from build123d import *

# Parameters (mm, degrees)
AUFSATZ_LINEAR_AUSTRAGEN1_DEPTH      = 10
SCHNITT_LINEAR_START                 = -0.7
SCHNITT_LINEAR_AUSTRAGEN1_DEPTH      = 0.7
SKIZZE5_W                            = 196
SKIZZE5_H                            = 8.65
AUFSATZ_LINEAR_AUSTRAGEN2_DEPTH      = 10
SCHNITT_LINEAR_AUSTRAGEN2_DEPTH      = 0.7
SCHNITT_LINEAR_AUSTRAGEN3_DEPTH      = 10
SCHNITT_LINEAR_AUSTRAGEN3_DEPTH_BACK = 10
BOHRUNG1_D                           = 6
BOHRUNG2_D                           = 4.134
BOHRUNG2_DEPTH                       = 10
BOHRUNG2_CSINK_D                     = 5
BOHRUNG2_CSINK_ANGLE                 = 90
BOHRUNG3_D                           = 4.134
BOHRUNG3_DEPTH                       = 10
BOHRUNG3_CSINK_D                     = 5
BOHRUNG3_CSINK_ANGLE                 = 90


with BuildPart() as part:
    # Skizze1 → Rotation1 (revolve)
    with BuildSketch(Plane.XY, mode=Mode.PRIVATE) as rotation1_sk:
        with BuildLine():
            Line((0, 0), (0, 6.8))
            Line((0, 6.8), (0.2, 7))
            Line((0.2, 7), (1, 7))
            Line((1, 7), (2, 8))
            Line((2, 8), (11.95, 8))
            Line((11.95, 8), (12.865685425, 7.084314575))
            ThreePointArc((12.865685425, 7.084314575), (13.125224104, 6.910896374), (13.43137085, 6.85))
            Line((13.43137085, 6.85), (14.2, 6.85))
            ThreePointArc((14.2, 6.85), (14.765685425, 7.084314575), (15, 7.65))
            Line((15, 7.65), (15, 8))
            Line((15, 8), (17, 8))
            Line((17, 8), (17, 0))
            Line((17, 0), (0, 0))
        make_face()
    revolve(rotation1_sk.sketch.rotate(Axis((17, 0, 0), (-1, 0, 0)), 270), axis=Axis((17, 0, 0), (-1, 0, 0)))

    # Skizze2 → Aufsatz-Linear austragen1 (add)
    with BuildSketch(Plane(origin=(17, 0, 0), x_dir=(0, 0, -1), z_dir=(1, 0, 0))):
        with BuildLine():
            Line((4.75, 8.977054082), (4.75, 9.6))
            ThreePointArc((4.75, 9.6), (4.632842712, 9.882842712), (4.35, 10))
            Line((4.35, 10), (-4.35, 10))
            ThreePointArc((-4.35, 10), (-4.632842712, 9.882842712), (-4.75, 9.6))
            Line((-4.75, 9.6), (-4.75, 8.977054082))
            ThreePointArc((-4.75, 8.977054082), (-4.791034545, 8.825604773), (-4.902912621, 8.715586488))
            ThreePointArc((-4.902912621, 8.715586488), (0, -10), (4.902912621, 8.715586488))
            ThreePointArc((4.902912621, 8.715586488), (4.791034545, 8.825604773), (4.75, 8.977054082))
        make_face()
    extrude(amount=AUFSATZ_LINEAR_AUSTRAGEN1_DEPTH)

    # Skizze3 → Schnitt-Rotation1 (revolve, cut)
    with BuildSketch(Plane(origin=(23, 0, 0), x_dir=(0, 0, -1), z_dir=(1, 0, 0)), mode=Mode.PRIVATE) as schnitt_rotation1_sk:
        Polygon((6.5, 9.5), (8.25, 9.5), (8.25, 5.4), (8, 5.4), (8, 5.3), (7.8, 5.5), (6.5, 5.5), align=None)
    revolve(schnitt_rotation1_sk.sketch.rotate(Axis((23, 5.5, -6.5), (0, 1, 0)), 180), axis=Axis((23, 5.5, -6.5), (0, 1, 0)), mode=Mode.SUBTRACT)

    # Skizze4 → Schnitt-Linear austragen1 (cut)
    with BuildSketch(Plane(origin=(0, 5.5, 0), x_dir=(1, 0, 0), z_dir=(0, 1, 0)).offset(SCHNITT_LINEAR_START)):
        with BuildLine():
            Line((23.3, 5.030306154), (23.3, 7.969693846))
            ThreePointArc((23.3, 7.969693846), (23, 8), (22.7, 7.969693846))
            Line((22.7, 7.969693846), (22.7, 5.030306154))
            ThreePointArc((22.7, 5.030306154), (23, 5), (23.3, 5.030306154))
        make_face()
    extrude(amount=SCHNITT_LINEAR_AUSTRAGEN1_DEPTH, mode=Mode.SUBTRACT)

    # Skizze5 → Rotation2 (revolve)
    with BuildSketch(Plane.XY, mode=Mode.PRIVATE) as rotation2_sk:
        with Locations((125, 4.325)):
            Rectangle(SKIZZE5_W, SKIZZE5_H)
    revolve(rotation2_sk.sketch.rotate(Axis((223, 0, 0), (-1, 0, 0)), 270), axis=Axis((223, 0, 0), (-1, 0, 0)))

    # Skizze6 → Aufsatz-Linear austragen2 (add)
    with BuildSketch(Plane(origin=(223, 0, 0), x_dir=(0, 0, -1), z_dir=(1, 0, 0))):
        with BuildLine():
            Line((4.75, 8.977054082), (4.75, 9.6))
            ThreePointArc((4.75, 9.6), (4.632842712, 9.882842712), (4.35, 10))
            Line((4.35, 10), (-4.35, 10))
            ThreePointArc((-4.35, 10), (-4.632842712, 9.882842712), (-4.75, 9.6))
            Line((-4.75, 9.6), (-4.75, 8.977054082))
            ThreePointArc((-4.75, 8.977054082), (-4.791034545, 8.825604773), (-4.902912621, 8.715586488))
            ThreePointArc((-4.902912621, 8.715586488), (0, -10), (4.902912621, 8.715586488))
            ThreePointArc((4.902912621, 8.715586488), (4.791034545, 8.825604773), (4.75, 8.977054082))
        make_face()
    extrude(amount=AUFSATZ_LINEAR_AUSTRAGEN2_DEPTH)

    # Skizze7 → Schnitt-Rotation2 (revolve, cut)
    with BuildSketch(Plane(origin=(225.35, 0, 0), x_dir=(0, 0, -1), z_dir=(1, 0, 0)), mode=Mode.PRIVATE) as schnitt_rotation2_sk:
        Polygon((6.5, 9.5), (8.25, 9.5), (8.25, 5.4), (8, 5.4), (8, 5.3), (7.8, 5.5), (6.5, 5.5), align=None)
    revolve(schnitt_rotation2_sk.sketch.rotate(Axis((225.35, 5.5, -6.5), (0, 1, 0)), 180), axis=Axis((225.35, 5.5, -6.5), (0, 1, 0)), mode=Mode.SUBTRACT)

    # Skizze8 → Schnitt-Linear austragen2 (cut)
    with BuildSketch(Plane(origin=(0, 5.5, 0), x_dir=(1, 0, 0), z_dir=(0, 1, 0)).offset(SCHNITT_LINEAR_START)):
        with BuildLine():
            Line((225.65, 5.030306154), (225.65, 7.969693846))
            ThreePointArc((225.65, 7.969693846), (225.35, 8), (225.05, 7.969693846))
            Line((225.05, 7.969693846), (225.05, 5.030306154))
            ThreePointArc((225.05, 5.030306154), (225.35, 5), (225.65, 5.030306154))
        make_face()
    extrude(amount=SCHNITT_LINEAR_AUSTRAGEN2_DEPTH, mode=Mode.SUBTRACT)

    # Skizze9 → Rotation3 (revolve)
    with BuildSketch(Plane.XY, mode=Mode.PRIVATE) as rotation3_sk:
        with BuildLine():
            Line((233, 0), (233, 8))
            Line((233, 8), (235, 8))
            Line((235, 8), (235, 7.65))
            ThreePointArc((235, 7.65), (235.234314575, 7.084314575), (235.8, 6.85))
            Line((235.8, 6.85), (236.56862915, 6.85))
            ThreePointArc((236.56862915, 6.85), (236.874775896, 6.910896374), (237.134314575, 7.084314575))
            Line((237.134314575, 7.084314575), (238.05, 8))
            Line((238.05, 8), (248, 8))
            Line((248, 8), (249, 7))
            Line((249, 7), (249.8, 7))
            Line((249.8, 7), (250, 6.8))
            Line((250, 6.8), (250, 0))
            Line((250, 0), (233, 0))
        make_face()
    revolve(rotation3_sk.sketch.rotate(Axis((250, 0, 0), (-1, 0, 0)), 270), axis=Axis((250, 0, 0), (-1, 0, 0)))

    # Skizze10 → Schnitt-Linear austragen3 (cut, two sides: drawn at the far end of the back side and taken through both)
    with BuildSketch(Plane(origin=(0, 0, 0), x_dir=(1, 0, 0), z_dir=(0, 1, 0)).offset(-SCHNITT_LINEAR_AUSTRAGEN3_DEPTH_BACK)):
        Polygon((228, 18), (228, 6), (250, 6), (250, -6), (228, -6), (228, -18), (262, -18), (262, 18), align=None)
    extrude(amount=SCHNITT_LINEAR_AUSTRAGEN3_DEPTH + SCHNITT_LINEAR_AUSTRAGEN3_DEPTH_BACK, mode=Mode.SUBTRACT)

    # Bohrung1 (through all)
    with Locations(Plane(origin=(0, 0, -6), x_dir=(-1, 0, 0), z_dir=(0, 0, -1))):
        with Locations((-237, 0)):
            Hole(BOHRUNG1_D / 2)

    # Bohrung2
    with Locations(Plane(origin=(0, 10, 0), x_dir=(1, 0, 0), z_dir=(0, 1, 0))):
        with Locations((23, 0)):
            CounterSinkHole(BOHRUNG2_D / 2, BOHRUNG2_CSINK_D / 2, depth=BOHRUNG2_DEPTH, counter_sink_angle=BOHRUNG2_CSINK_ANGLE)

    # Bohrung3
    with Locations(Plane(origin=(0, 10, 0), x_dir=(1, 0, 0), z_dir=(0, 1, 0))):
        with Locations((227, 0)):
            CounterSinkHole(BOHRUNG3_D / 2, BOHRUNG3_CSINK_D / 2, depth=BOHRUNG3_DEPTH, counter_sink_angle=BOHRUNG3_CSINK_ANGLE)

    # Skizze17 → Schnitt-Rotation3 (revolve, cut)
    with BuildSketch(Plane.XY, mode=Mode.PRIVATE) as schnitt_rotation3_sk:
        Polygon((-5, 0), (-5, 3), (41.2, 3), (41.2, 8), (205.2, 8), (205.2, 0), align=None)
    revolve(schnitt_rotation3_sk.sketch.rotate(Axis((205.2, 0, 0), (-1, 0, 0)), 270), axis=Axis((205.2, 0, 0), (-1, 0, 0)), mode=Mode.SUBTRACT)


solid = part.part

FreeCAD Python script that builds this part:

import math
import FreeCAD as App
import Part
import Sketcher
from FreeCAD import Vector
Q = App.Units.Quantity


def add_polygon(sketch, points):
    """Adds a closed chain of lines whose ends are joined by coincident constraints."""
    first, n = sketch.GeometryCount, len(points)
    for a, b in zip(points, points[1:] + points[:1]):
        sketch.addGeometry(Part.LineSegment(App.Vector(*a, 0), App.Vector(*b, 0)), False)
    for i in range(n):
        sketch.addConstraint(Sketcher.Constraint("Coincident", first + i, 2, first + (i + 1) % n, 1))

doc = App.newDocument("Part")
params = doc.addObject("Spreadsheet::Sheet", "Params")
for row, (alias, value) in enumerate([
    ("sketch1_radius", "0.8 mm"),
    ("sketch1_width", "17 mm"),
    ("sketch1_width2", "2 mm"),
    ("sketch1_height", "8 mm"),
    ("sketch1_width3", "0.8 mm"),
    ("revolution_angle", "360 deg"),
    ("sketch2_radius", "10 mm"),
    ("sketch2_radius2", "0.4 mm"),
    ("sketch2_radius3", "0.3 mm"),
    ("sketch2_height", "8.7 mm"),
    ("pad1_length", "10 mm"),
    ("sketch3_width", "4 mm"),
    ("sketch3_width2", "0.1 mm"),
    ("sketch3_width3", "4.1 mm"),
    ("sketch3_height", "1.3 mm"),
    ("sketch3_height2", "1.75 mm"),
    ("groove_angle", "360 deg"),
    ("sketch4_radius", "1.5 mm"),
    ("pocket1_length", "0.7 mm"),
    ("sketch5_width", "196 mm"),
    ("sketch5_height", "8.65 mm"),
    ("revolution2_angle", "360 deg"),
    ("sketch6_radius", "10 mm"),
    ("sketch6_radius2", "0.4 mm"),
    ("sketch6_radius3", "0.3 mm"),
    ("sketch6_height", "8.7 mm"),
    ("pad2_length", "10 mm"),
    ("sketch7_width", "4 mm"),
    ("sketch7_width2", "0.1 mm"),
    ("sketch7_width3", "4.1 mm"),
    ("sketch7_height", "1.3 mm"),
    ("sketch7_height2", "1.75 mm"),
    ("groove2_angle", "360 deg"),
    ("sketch8_radius", "1.5 mm"),
    ("pocket2_length", "0.7 mm"),
    ("sketch9_radius", "0.8 mm"),
    ("sketch9_width", "17 mm"),
    ("sketch9_width2", "2 mm"),
    ("sketch9_height", "8 mm"),
    ("sketch9_width3", "0.8 mm"),
    ("revolution3_angle", "360 deg"),
    ("sketch10_width", "22 mm"),
    ("sketch10_width2", "34 mm"),
    ("sketch10_height", "12 mm"),
    ("sketch11_diameter", "6 mm"),
    ("hole_diameter", "6 mm"),
    ("hole2_diameter", "4.134 mm"),
    ("hole2_depth", "10 mm"),
    ("hole2_csink_diameter", "5 mm"),
    ("hole3_diameter", "4.134 mm"),
    ("hole3_depth", "10 mm"),
    ("hole3_csink_diameter", "5 mm"),
    ("sketch14_width", "164 mm"),
    ("sketch14_height", "3 mm"),
    ("sketch14_height2", "8 mm"),
    ("sketch14_width2", "210.2 mm"),
    ("groove3_angle", "360 deg"),
], start=1):
    params.set(f"A{row}", alias)
    params.set(f"B{row}", "=" + value)
    params.setAlias(f"B{row}", alias)

body = doc.addObject("PartDesign::Body", "Body")

sketch1 = doc.addObject("Sketcher::SketchObject", "Sketch")
body.addObject(sketch1)
sketch1.AttachmentSupport = (doc.XY_Plane, [""])
sketch1.MapMode = "FlatFace"
sketch1.addGeometry(Part.LineSegment(Vector(0, 6.8, 0), Vector(0, 0, 0)), False)
sketch1.addGeometry(Part.LineSegment(Vector(0, 0, 0), Vector(17, 0, 0)), False)
sketch1.addGeometry(Part.LineSegment(Vector(17, 0, 0), Vector(17, 8, 0)), False)
sketch1.addGeometry(Part.LineSegment(Vector(17, 8, 0), Vector(15, 8, 0)), False)
sketch1.addGeometry(Part.LineSegment(Vector(15, 8, 0), Vector(15, 7.65, 0)), False)
sketch1.addGeometry(Part.ArcOfCircle(Part.Circle(Vector(14.2, 7.65, 0), Vector(0, 0, 1), 0.8), math.radians(-90), math.radians(0)), False)
sketch1.addGeometry(Part.LineSegment(Vector(14.2, 6.85, 0), Vector(13.431371, 6.85, 0)), False)
sketch1.addGeometry(Part.ArcOfCircle(Part.Circle(Vector(13.431371, 7.65, 0), Vector(0, 0, 1), 0.8), math.radians(-135), math.radians(-90)), False)
sketch1.addGeometry(Part.LineSegment(Vector(12.865685, 7.084315, 0), Vector(11.95, 8, 0)), False)
sketch1.addGeometry(Part.LineSegment(Vector(11.95, 8, 0), Vector(2, 8, 0)), False)
sketch1.addGeometry(Part.LineSegment(Vector(2, 8, 0), Vector(1, 7, 0)), False)
sketch1.addGeometry(Part.LineSegment(Vector(1, 7, 0), Vector(0.2, 7, 0)), False)
sketch1.addGeometry(Part.LineSegment(Vector(0.2, 7, 0), Vector(0, 6.8, 0)), False)
sketch1.addConstraint(Sketcher.Constraint("Coincident", 0, 2, 1, 1))
sketch1.addConstraint(Sketcher.Constraint("Coincident", 1, 2, 2, 1))
sketch1.addConstraint(Sketcher.Constraint("Coincident", 2, 2, 3, 1))
sketch1.addConstraint(Sketcher.Constraint("Coincident", 3, 2, 4, 1))
sketch1.addConstraint(Sketcher.Constraint("Tangent", 4, 2, 5, 2))
sketch1.addConstraint(Sketcher.Constraint("Tangent", 5, 1, 6, 1))
sketch1.addConstraint(Sketcher.Constraint("Tangent", 6, 2, 7, 2))
sketch1.addConstraint(Sketcher.Constraint("Tangent", 7, 1, 8, 1))
sketch1.addConstraint(Sketcher.Constraint("Coincident", 8, 2, 9, 1))
sketch1.addConstraint(Sketcher.Constraint("Coincident", 9, 2, 10, 1))
sketch1.addConstraint(Sketcher.Constraint("Coincident", 10, 2, 11, 1))
sketch1.addConstraint(Sketcher.Constraint("Coincident", 11, 2, 12, 1))
sketch1.addConstraint(Sketcher.Constraint("Coincident", 12, 2, 0, 1))
sketch1.addConstraint(Sketcher.Constraint("Vertical", 0))
sketch1.addConstraint(Sketcher.Constraint("Horizontal", 1))
sketch1.addConstraint(Sketcher.Constraint("Vertical", 2))
sketch1.addConstraint(Sketcher.Constraint("Horizontal", 3))
sketch1.addConstraint(Sketcher.Constraint("Vertical", 4))
sketch1.addConstraint(Sketcher.Constraint("Horizontal", 6))
sketch1.addConstraint(Sketcher.Constraint("Horizontal", 9))
sketch1.addConstraint(Sketcher.Constraint("Horizontal", 11))
sketch1.addConstraint(Sketcher.Constraint("Coincident", 0, 2, -1, 1))
sketch1.addConstraint(Sketcher.Constraint("Equal", 5, 7))
sketch1.addConstraint(Sketcher.Constraint("Perpendicular", 8, 10))
sketch1.addConstraint(Sketcher.Constraint("Parallel", 10, 12))
sketch1.addConstraint(Sketcher.Constraint("Horizontal", 3, 2, 8, 2))
sketch1.addConstraint(Sketcher.Constraint("Radius", 5, Q("0.8 mm")))
sketch1.addConstraint(Sketcher.Constraint("DistanceX", 1, 1, 1, 2, Q("17 mm")))
sketch1.addConstraint(Sketcher.Constraint("DistanceX", 3, 2, 3, 1, Q("2 mm")))
sketch1.addConstraint(Sketcher.Constraint("DistanceY", 2, 1, 2, 2, Q("8 mm")))
sketch1.addConstraint(Sketcher.Constraint("Angle", 8, Q("135 deg")))
sketch1.addConstraint(Sketcher.Constraint("DistanceX", 11, 2, 11, 1, Q("0.8 mm")))
sketch1.addConstraint(Sketcher.Constraint("DistanceY", 0, 2, 0, 1, Q("6.8 mm")))
sketch1.addConstraint(Sketcher.Constraint("DistanceX", -1, 1, 10, 2, Q("1 mm")))
sketch1.addConstraint(Sketcher.Constraint("DistanceX", 9, 2, 9, 1, Q("9.95 mm")))
sketch1.addConstraint(Sketcher.Constraint("DistanceY", 4, 2, 4, 1, Q("0.35 mm")))
sketch1.setExpression("Constraints[26]", "Params.sketch1_radius")
sketch1.setExpression("Constraints[27]", "Params.sketch1_width")
sketch1.setExpression("Constraints[28]", "Params.sketch1_width2")
sketch1.setExpression("Constraints[29]", "Params.sketch1_height")
sketch1.setExpression("Constraints[31]", "Params.sketch1_width3")
revolution = doc.addObject("PartDesign::Revolution", "Revolution")
body.addObject(revolution)
revolution.Profile = sketch1
revolution.ReferenceAxis = (sketch1, ["H_Axis"])
revolution.setExpression("Angle", "Params.revolution_angle")

sketch2 = doc.addObject("Sketcher::SketchObject", "Sketch001")
body.addObject(sketch2)
sketch2.AttachmentSupport = (doc.YZ_Plane, [""])
sketch2.MapMode = "FlatFace"
sketch2.AttachmentOffset = App.Placement(Vector(0, 0, 17), App.Rotation())
sketch2.addGeometry(Part.LineSegment(Vector(8.977054, -4.75, 0), Vector(9.6, -4.75, 0)), False)
sketch2.addGeometry(Part.ArcOfCircle(Part.Circle(Vector(9.6, -4.35, 0), Vector(0, 0, 1), 0.4), math.radians(-90), math.radians(0)), False)
sketch2.addGeometry(Part.LineSegment(Vector(10, -4.35, 0), Vector(10, 4.35, 0)), False)
sketch2.addGeometry(Part.ArcOfCircle(Part.Circle(Vector(9.6, 4.35, 0), Vector(0, 0, 1), 0.4), math.radians(0), math.radians(90)), False)
sketch2.addGeometry(Part.LineSegment(Vector(9.6, 4.75, 0), Vector(8.977054, 4.75, 0)), False)
sketch2.addGeometry(Part.ArcOfCircle(Part.Circle(Vector(8.977054, 5.05, 0), Vector(0, 0, 1), 0.3), math.radians(-150.640273), math.radians(-90)), False)
sketch2.addGeometry(Part.ArcOfCircle(Part.Circle(Vector(0, 0, 0), Vector(0, 0, 1), 10), math.radians(29.359727), math.radians(330.640273)), False)
sketch2.addGeometry(Part.ArcOfCircle(Part.Circle(Vector(8.977054, -5.05, 0), Vector(0, 0, 1), 0.3), math.radians(90), math.radians(150.640273)), False)
sketch2.addConstraint(Sketcher.Constraint("Tangent", 0, 2, 1, 1))
sketch2.addConstraint(Sketcher.Constraint("Tangent", 1, 2, 2, 1))
sketch2.addConstraint(Sketcher.Constraint("Tangent", 2, 2, 3, 1))
sketch2.addConstraint(Sketcher.Constraint("Tangent", 3, 2, 4, 1))
sketch2.addConstraint(Sketcher.Constraint("Tangent", 4, 2, 5, 2))
sketch2.addConstraint(Sketcher.Constraint("Tangent", 5, 1, 6, 1))
sketch2.addConstraint(Sketcher.Constraint("Tangent", 6, 2, 7, 2))
sketch2.addConstraint(Sketcher.Constraint("Tangent", 7, 1, 0, 1))
sketch2.addConstraint(Sketcher.Constraint("Horizontal", 0))
sketch2.addConstraint(Sketcher.Constraint("Vertical", 2))
sketch2.addConstraint(Sketcher.Constraint("Horizontal", 4))
sketch2.addConstraint(Sketcher.Constraint("Coincident", 6, 3, -1, 1))
sketch2.addConstraint(Sketcher.Constraint("Equal", 1, 3))
sketch2.addConstraint(Sketcher.Constraint("Equal", 5, 7))
sketch2.addConstraint(Sketcher.Constraint("Vertical", 5, 3, 7, 3))
sketch2.addConstraint(Sketcher.Constraint("Radius", 6, Q("10 mm")))
sketch2.addConstraint(Sketcher.Constraint("Radius", 1, Q("0.4 mm")))
sketch2.addConstraint(Sketcher.Constraint("Radius", 5, Q("0.3 mm")))
sketch2.addConstraint(Sketcher.Constraint("DistanceY", 2, 1, 2, 2, Q("8.7 mm")))
sketch2.addConstraint(Sketcher.Constraint("DistanceX", -1, 1, 1, 2, Q("10 mm")))
sketch2.setExpression("Constraints[15]", "Params.sketch2_radius")
sketch2.setExpression("Constraints[16]", "Params.sketch2_radius2")
sketch2.setExpression("Constraints[17]", "Params.sketch2_radius3")
sketch2.setExpression("Constraints[18]", "Params.sketch2_height")
pad1 = doc.addObject("PartDesign::Pad", "Pad")
body.addObject(pad1)
pad1.Profile = sketch2
pad1.setExpression("Length", "Params.pad1_length")

sketch3 = doc.addObject("Sketcher::SketchObject", "Sketch002")
body.addObject(sketch3)
sketch3.AttachmentSupport = (doc.YZ_Plane, [""])
sketch3.MapMode = "FlatFace"
sketch3.AttachmentOffset = App.Placement(Vector(0, 0, 23), App.Rotation())
add_polygon(sketch3, [(9.5, -8.25), (9.5, -6.5), (5.5, -6.5), (5.5, -7.8), (5.3, -8), (5.4, -8), (5.4, -8.25)])
sketch3.addGeometry(Part.LineSegment(Vector(5.3, -6.5, 0), Vector(9.5, -6.5, 0)), True)
sketch3.addConstraint(Sketcher.Constraint("Vertical", 0))
sketch3.addConstraint(Sketcher.Constraint("Horizontal", 1))
sketch3.addConstraint(Sketcher.Constraint("Vertical", 2))
sketch3.addConstraint(Sketcher.Constraint("Horizontal", 4))
sketch3.addConstraint(Sketcher.Constraint("Vertical", 5))
sketch3.addConstraint(Sketcher.Constraint("Horizontal", 6))
sketch3.addConstraint(Sketcher.Constraint("Horizontal", 7))
sketch3.addConstraint(Sketcher.Constraint("Coincident", 7, 2, 0, 2))
sketch3.addConstraint(Sketcher.Constraint("Vertical", 3, 2, 7, 1))
sketch3.addConstraint(Sketcher.Constraint("DistanceX", 1, 2, 1, 1, Q("4 mm")))
sketch3.addConstraint(Sketcher.Constraint("Angle", 3, Q("-135 deg")))
sketch3.addConstraint(Sketcher.Constraint("DistanceX", 4, 1, 4, 2, Q("0.1 mm")))
sketch3.addConstraint(Sketcher.Constraint("DistanceX", 6, 1, 6, 2, Q("4.1 mm")))
sketch3.addConstraint(Sketcher.Constraint("DistanceY", 2, 2, 2, 1, Q("1.3 mm")))
sketch3.addConstraint(Sketcher.Constraint("DistanceY", 3, 2, -1, 1, Q("8 mm")))
sketch3.addConstraint(Sketcher.Constraint("DistanceY", 0, 1, 0, 2, Q("1.75 mm")))
sketch3.addConstraint(Sketcher.Constraint("DistanceX", -1, 1, 0, 2, Q("9.5 mm")))
sketch3.setExpression("Constraints[16]", "Params.sketch3_width")
sketch3.setExpression("Constraints[18]", "Params.sketch3_width2")
sketch3.setExpression("Constraints[19]", "Params.sketch3_width3")
sketch3.setExpression("Constraints[20]", "Params.sketch3_height")
sketch3.setExpression("Constraints[22]", "Params.sketch3_height2")
groove = doc.addObject("PartDesign::Groove", "Groove")
body.addObject(groove)
groove.Profile = sketch3
groove.ReferenceAxis = (sketch3, ["Axis0"])
groove.setExpression("Angle", "Params.groove_angle")

sketch4 = doc.addObject("Sketcher::SketchObject", "Sketch003")
body.addObject(sketch4)
sketch4.AttachmentSupport = (doc.XZ_Plane, [""])
sketch4.MapMode = "FlatFace"
sketch4.AttachmentOffset = App.Placement(Vector(0, 0, -4.8), App.Rotation())
sketch4.addGeometry(Part.LineSegment(Vector(23.3, -5.030306, 0), Vector(23.3, -7.969694, 0)), False)
sketch4.addGeometry(Part.ArcOfCircle(Part.Circle(Vector(23, -6.5, 0), Vector(0, 0, 1), 1.5), math.radians(-101.536959), math.radians(-78.463041)), False)
sketch4.addGeometry(Part.LineSegment(Vector(22.7, -7.969694, 0), Vector(22.7, -5.030306, 0)), False)
sketch4.addGeometry(Part.ArcOfCircle(Part.Circle(Vector(23, -6.5, 0), Vector(0, 0, 1), 1.5), math.radians(78.463041), math.radians(101.536959)), False)
sketch4.addConstraint(Sketcher.Constraint("Coincident", 0, 2, 1, 2))
sketch4.addConstraint(Sketcher.Constraint("Coincident", 1, 1, 2, 1))
sketch4.addConstraint(Sketcher.Constraint("Coincident", 2, 2, 3, 2))
sketch4.addConstraint(Sketcher.Constraint("Coincident", 3, 1, 0, 1))
sketch4.addConstraint(Sketcher.Constraint("Vertical", 0))
sketch4.addConstraint(Sketcher.Constraint("Vertical", 2))
sketch4.addConstraint(Sketcher.Constraint("Coincident", 3, 3, 1, 3))
sketch4.addConstraint(Sketcher.Constraint("Equal", 1, 3))
sketch4.addConstraint(Sketcher.Constraint("Horizontal", 0, 2, 1, 1))
sketch4.addConstraint(Sketcher.Constraint("Radius", 1, Q("1.5 mm")))
sketch4.addConstraint(Sketcher.Constraint("DistanceX", -1, 1, 1, 3, Q("23 mm")))
sketch4.addConstraint(Sketcher.Constraint("DistanceY", 1, 3, -1, 1, Q("6.5 mm")))
sketch4.addConstraint(Sketcher.Constraint("DistanceX", -1, 1, 0, 2, Q("23.3 mm")))
sketch4.setExpression("Constraints[9]", "Params.sketch4_radius")
pocket1 = doc.addObject("PartDesign::Pocket", "Pocket")
body.addObject(pocket1)
pocket1.Profile = sketch4
pocket1.setExpression("Length", "Params.pocket1_length")

sketch5 = doc.addObject("Sketcher::SketchObject", "Sketch004")
body.addObject(sketch5)
sketch5.AttachmentSupport = (doc.XY_Plane, [""])
sketch5.MapMode = "FlatFace"
add_polygon(sketch5, [(27, 8.65), (27, 0), (223, 0), (223, 8.65)])
sketch5.addConstraint(Sketcher.Constraint("Vertical", 0))
sketch5.addConstraint(Sketcher.Constraint("Horizontal", 1))
sketch5.addConstraint(Sketcher.Constraint("Vertical", 2))
sketch5.addConstraint(Sketcher.Constraint("Horizontal", 3))
sketch5.addConstraint(Sketcher.Constraint("PointOnObject", 0, 2, -1))
sketch5.addConstraint(Sketcher.Constraint("DistanceX", 1, 1, 1, 2, Q("196 mm")))
sketch5.addConstraint(Sketcher.Constraint("DistanceX", -1, 1, 0, 2, Q("27 mm")))
sketch5.addConstraint(Sketcher.Constraint("DistanceY", 0, 2, 0, 1, Q("8.65 mm")))
sketch5.setExpression("Constraints[9]", "Params.sketch5_width")
sketch5.setExpression("Constraints[11]", "Params.sketch5_height")
revolution2 = doc.addObject("PartDesign::Revolution", "Revolution001")
body.addObject(revolution2)
revolution2.Profile = sketch5
revolution2.ReferenceAxis = (sketch5, ["H_Axis"])
revolution2.setExpression("Angle", "Params.revolution2_angle")

sketch6 = doc.addObject("Sketcher::SketchObject", "Sketch005")
body.addObject(sketch6)
sketch6.AttachmentSupport = (doc.YZ_Plane, [""])
sketch6.MapMode = "FlatFace"
sketch6.AttachmentOffset = App.Placement(Vector(0, 0, 223), App.Rotation())
sketch6.addGeometry(Part.LineSegment(Vector(8.977054, -4.75, 0), Vector(9.6, -4.75, 0)), False)
sketch6.addGeometry(Part.ArcOfCircle(Part.Circle(Vector(9.6, -4.35, 0), Vector(0, 0, 1), 0.4), math.radians(-90), math.radians(0)), False)
sketch6.addGeometry(Part.LineSegment(Vector(10, -4.35, 0), Vector(10, 4.35, 0)), False)
sketch6.addGeometry(Part.ArcOfCircle(Part.Circle(Vector(9.6, 4.35, 0), Vector(0, 0, 1), 0.4), math.radians(0), math.radians(90)), False)
sketch6.addGeometry(Part.LineSegment(Vector(9.6, 4.75, 0), Vector(8.977054, 4.75, 0)), False)
sketch6.addGeometry(Part.ArcOfCircle(Part.Circle(Vector(8.977054, 5.05, 0), Vector(0, 0, 1), 0.3), math.radians(-150.640273), math.radians(-90)), False)
sketch6.addGeometry(Part.ArcOfCircle(Part.Circle(Vector(0, 0, 0), Vector(0, 0, 1), 10), math.radians(29.359727), math.radians(330.640273)), False)
sketch6.addGeometry(Part.ArcOfCircle(Part.Circle(Vector(8.977054, -5.05, 0), Vector(0, 0, 1), 0.3), math.radians(90), math.radians(150.640273)), False)
sketch6.addConstraint(Sketcher.Constraint("Tangent", 0, 2, 1, 1))
sketch6.addConstraint(Sketcher.Constraint("Tangent", 1, 2, 2, 1))
sketch6.addConstraint(Sketcher.Constraint("Tangent", 2, 2, 3, 1))
sketch6.addConstraint(Sketcher.Constraint("Tangent", 3, 2, 4, 1))
sketch6.addConstraint(Sketcher.Constraint("Tangent", 4, 2, 5, 2))
sketch6.addConstraint(Sketcher.Constraint("Tangent", 5, 1, 6, 1))
sketch6.addConstraint(Sketcher.Constraint("Tangent", 6, 2, 7, 2))
sketch6.addConstraint(Sketcher.Constraint("Tangent", 7, 1, 0, 1))
sketch6.addConstraint(Sketcher.Constraint("Horizontal", 0))
sketch6.addConstraint(Sketcher.Constraint("Vertical", 2))
sketch6.addConstraint(Sketcher.Constraint("Horizontal", 4))
sketch6.addConstraint(Sketcher.Constraint("Coincident", 6, 3, -1, 1))
sketch6.addConstraint(Sketcher.Constraint("Equal", 1, 3))
sketch6.addConstraint(Sketcher.Constraint("Equal", 5, 7))
sketch6.addConstraint(Sketcher.Constraint("Vertical", 5, 3, 7, 3))
sketch6.addConstraint(Sketcher.Constraint("Radius", 6, Q("10 mm")))
sketch6.addConstraint(Sketcher.Constraint("Radius", 1, Q("0.4 mm")))
sketch6.addConstraint(Sketcher.Constraint("Radius", 5, Q("0.3 mm")))
sketch6.addConstraint(Sketcher.Constraint("DistanceY", 2, 1, 2, 2, Q("8.7 mm")))
sketch6.addConstraint(Sketcher.Constraint("DistanceX", -1, 1, 1, 2, Q("10 mm")))
sketch6.setExpression("Constraints[15]", "Params.sketch6_radius")
sketch6.setExpression("Constraints[16]", "Params.sketch6_radius2")
sketch6.setExpression("Constraints[17]", "Params.sketch6_radius3")
sketch6.setExpression("Constraints[18]", "Params.sketch6_height")
pad2 = doc.addObject("PartDesign::Pad", "Pad001")
body.addObject(pad2)
pad2.Profile = sketch6
pad2.setExpression("Length", "Params.pad2_length")

sketch7 = doc.addObject("Sketcher::SketchObject", "Sketch006")
body.addObject(sketch7)
sketch7.AttachmentSupport = (doc.YZ_Plane, [""])
sketch7.MapMode = "FlatFace"
sketch7.AttachmentOffset = App.Placement(Vector(0, 0, 225.35), App.Rotation())
add_polygon(sketch7, [(9.5, -8.25), (9.5, -6.5), (5.5, -6.5), (5.5, -7.8), (5.3, -8), (5.4, -8), (5.4, -8.25)])
sketch7.addGeometry(Part.LineSegment(Vector(5.3, -6.5, 0), Vector(9.5, -6.5, 0)), True)
sketch7.addConstraint(Sketcher.Constraint("Vertical", 0))
sketch7.addConstraint(Sketcher.Constraint("Horizontal", 1))
sketch7.addConstraint(Sketcher.Constraint("Vertical", 2))
sketch7.addConstraint(Sketcher.Constraint("Horizontal", 4))
sketch7.addConstraint(Sketcher.Constraint("Vertical", 5))
sketch7.addConstraint(Sketcher.Constraint("Horizontal", 6))
sketch7.addConstraint(Sketcher.Constraint("Horizontal", 7))
sketch7.addConstraint(Sketcher.Constraint("Coincident", 7, 2, 0, 2))
sketch7.addConstraint(Sketcher.Constraint("Vertical", 3, 2, 7, 1))
sketch7.addConstraint(Sketcher.Constraint("DistanceX", 1, 2, 1, 1, Q("4 mm")))
sketch7.addConstraint(Sketcher.Constraint("Angle", 3, Q("-135 deg")))
sketch7.addConstraint(Sketcher.Constraint("DistanceX", 4, 1, 4, 2, Q("0.1 mm")))
sketch7.addConstraint(Sketcher.Constraint("DistanceX", 6, 1, 6, 2, Q("4.1 mm")))
sketch7.addConstraint(Sketcher.Constraint("DistanceY", 2, 2, 2, 1, Q("1.3 mm")))
sketch7.addConstraint(Sketcher.Constraint("DistanceY", 3, 2, -1, 1, Q("8 mm")))
sketch7.addConstraint(Sketcher.Constraint("DistanceY", 0, 1, 0, 2, Q("1.75 mm")))
sketch7.addConstraint(Sketcher.Constraint("DistanceX", -1, 1, 0, 2, Q("9.5 mm")))
sketch7.setExpression("Constraints[16]", "Params.sketch7_width")
sketch7.setExpression("Constraints[18]", "Params.sketch7_width2")
sketch7.setExpression("Constraints[19]", "Params.sketch7_width3")
sketch7.setExpression("Constraints[20]", "Params.sketch7_height")
sketch7.setExpression("Constraints[22]", "Params.sketch7_height2")
groove2 = doc.addObject("PartDesign::Groove", "Groove001")
body.addObject(groove2)
groove2.Profile = sketch7
groove2.ReferenceAxis = (sketch7, ["Axis0"])
groove2.setExpression("Angle", "Params.groove2_angle")

sketch8 = doc.addObject("Sketcher::SketchObject", "Sketch007")
body.addObject(sketch8)
sketch8.AttachmentSupport = (doc.XZ_Plane, [""])
sketch8.MapMode = "FlatFace"
sketch8.AttachmentOffset = App.Placement(Vector(0, 0, -4.8), App.Rotation())
sketch8.addGeometry(Part.LineSegment(Vector(225.65, -5.030306, 0), Vector(225.65, -7.969694, 0)), False)
sketch8.addGeometry(Part.ArcOfCircle(Part.Circle(Vector(225.35, -6.5, 0), Vector(0, 0, 1), 1.5), math.radians(-101.536959), math.radians(-78.463041)), False)
sketch8.addGeometry(Part.LineSegment(Vector(225.05, -7.969694, 0), Vector(225.05, -5.030306, 0)), False)
sketch8.addGeometry(Part.ArcOfCircle(Part.Circle(Vector(225.35, -6.5, 0), Vector(0, 0, 1), 1.5), math.radians(78.463041), math.radians(101.536959)), False)
sketch8.addConstraint(Sketcher.Constraint("Coincident", 0, 2, 1, 2))
sketch8.addConstraint(Sketcher.Constraint("Coincident", 1, 1, 2, 1))
sketch8.addConstraint(Sketcher.Constraint("Coincident", 2, 2, 3, 2))
sketch8.addConstraint(Sketcher.Constraint("Coincident", 3, 1, 0, 1))
sketch8.addConstraint(Sketcher.Constraint("Vertical", 0))
sketch8.addConstraint(Sketcher.Constraint("Vertical", 2))
sketch8.addConstraint(Sketcher.Constraint("Coincident", 3, 3, 1, 3))
sketch8.addConstraint(Sketcher.Constraint("Equal", 1, 3))
sketch8.addConstraint(Sketcher.Constraint("Horizontal", 0, 2, 1, 1))
sketch8.addConstraint(Sketcher.Constraint("Radius", 1, Q("1.5 mm")))
sketch8.addConstraint(Sketcher.Constraint("DistanceY", 1, 3, -1, 1, Q("6.5 mm")))
sketch8.addConstraint(Sketcher.Constraint("DistanceX", 3, 3, 0, 2, Q("0.3 mm")))
sketch8.addConstraint(Sketcher.Constraint("DistanceX", -1, 1, 1, 3, Q("225.35 mm")))
sketch8.setExpression("Constraints[9]", "Params.sketch8_radius")
pocket2 = doc.addObject("PartDesign::Pocket", "Pocket001")
body.addObject(pocket2)
pocket2.Profile = sketch8
pocket2.setExpression("Length", "Params.pocket2_length")

sketch9 = doc.addObject("Sketcher::SketchObject", "Sketch008")
body.addObject(sketch9)
sketch9.AttachmentSupport = (doc.XY_Plane, [""])
sketch9.MapMode = "FlatFace"
sketch9.addGeometry(Part.LineSegment(Vector(233, 8, 0), Vector(233, 0, 0)), False)
sketch9.addGeometry(Part.LineSegment(Vector(233, 0, 0), Vector(250, 0, 0)), False)
sketch9.addGeometry(Part.LineSegment(Vector(250, 0, 0), Vector(250, 6.8, 0)), False)
sketch9.addGeometry(Part.LineSegment(Vector(250, 6.8, 0), Vector(249.8, 7, 0)), False)
sketch9.addGeometry(Part.LineSegment(Vector(249.8, 7, 0), Vector(249, 7, 0)), False)
sketch9.addGeometry(Part.LineSegment(Vector(249, 7, 0), Vector(248, 8, 0)), False)
sketch9.addGeometry(Part.LineSegment(Vector(248, 8, 0), Vector(238.05, 8, 0)), False)
sketch9.addGeometry(Part.LineSegment(Vector(238.05, 8, 0), Vector(237.134315, 7.084315, 0)), False)
sketch9.addGeometry(Part.ArcOfCircle(Part.Circle(Vector(236.568629, 7.65, 0), Vector(0, 0, 1), 0.8), math.radians(-90), math.radians(-45)), False)
sketch9.addGeometry(Part.LineSegment(Vector(236.568629, 6.85, 0), Vector(235.8, 6.85, 0)), False)
sketch9.addGeometry(Part.ArcOfCircle(Part.Circle(Vector(235.8, 7.65, 0), Vector(0, 0, 1), 0.8), math.radians(180), math.radians(270)), False)
sketch9.addGeometry(Part.LineSegment(Vector(235, 7.65, 0), Vector(235, 8, 0)), False)
sketch9.addGeometry(Part.LineSegment(Vector(235, 8, 0), Vector(233, 8, 0)), False)
sketch9.addConstraint(Sketcher.Constraint("Coincident", 0, 2, 1, 1))
sketch9.addConstraint(Sketcher.Constraint("Coincident", 1, 2, 2, 1))
sketch9.addConstraint(Sketcher.Constraint("Coincident", 2, 2, 3, 1))
sketch9.addConstraint(Sketcher.Constraint("Coincident", 3, 2, 4, 1))
sketch9.addConstraint(Sketcher.Constraint("Coincident", 4, 2, 5, 1))
sketch9.addConstraint(Sketcher.Constraint("Coincident", 5, 2, 6, 1))
sketch9.addConstraint(Sketcher.Constraint("Coincident", 6, 2, 7, 1))
sketch9.addConstraint(Sketcher.Constraint("Tangent", 7, 2, 8, 2))
sketch9.addConstraint(Sketcher.Constraint("Tangent", 8, 1, 9, 1))
sketch9.addConstraint(Sketcher.Constraint("Tangent", 9, 2, 10, 2))
sketch9.addConstraint(Sketcher.Constraint("Tangent", 10, 1, 11, 1))
sketch9.addConstraint(Sketcher.Constraint("Coincident", 11, 2, 12, 1))
sketch9.addConstraint(Sketcher.Constraint("Coincident", 12, 2, 0, 1))
sketch9.addConstraint(Sketcher.Constraint("Vertical", 0))
sketch9.addConstraint(Sketcher.Constraint("Horizontal", 1))
sketch9.addConstraint(Sketcher.Constraint("Vertical", 2))
sketch9.addConstraint(Sketcher.Constraint("Horizontal", 4))
sketch9.addConstraint(Sketcher.Constraint("Horizontal", 6))
sketch9.addConstraint(Sketcher.Constraint("Horizontal", 9))
sketch9.addConstraint(Sketcher.Constraint("Vertical", 11))
sketch9.addConstraint(Sketcher.Constraint("Horizontal", 12))
sketch9.addConstraint(Sketcher.Constraint("Equal", 8, 10))
sketch9.addConstraint(Sketcher.Constraint("PointOnObject", 0, 2, -1))
sketch9.addConstraint(Sketcher.Constraint("Parallel", 3, 5))
sketch9.addConstraint(Sketcher.Constraint("Perpendicular", 5, 7))
sketch9.addConstraint(Sketcher.Constraint("Horizontal", 6, 2, 11, 2))
sketch9.addConstraint(Sketcher.Constraint("Radius", 8, Q("0.8 mm")))
sketch9.addConstraint(Sketcher.Constraint("DistanceX", 1, 1, 1, 2, Q("17 mm")))
sketch9.addConstraint(Sketcher.Constraint("DistanceX", 12, 2, 12, 1, Q("2 mm")))
sketch9.addConstraint(Sketcher.Constraint("DistanceY", 0, 2, 0, 1, Q("8 mm")))
sketch9.addConstraint(Sketcher.Constraint("Angle", 3, Q("135 deg")))
sketch9.addConstraint(Sketcher.Constraint("DistanceX", 4, 2, 4, 1, Q("0.8 mm")))
sketch9.addConstraint(Sketcher.Constraint("DistanceY", 2, 1, 2, 2, Q("6.8 mm")))
sketch9.addConstraint(Sketcher.Constraint("DistanceX", -1, 1, 0, 2, Q("233 mm")))
sketch9.addConstraint(Sketcher.Constraint("DistanceY", -1, 1, 3, 2, Q("7 mm")))
sketch9.addConstraint(Sketcher.Constraint("DistanceX", 6, 2, 6, 1, Q("9.95 mm")))
sketch9.addConstraint(Sketcher.Constraint("DistanceY", 11, 1, 11, 2, Q("0.35 mm")))
sketch9.setExpression("Constraints[26]", "Params.sketch9_radius")
sketch9.setExpression("Constraints[27]", "Params.sketch9_width")
sketch9.setExpression("Constraints[28]", "Params.sketch9_width2")
sketch9.setExpression("Constraints[29]", "Params.sketch9_height")
sketch9.setExpression("Constraints[31]", "Params.sketch9_width3")
revolution3 = doc.addObject("PartDesign::Revolution", "Revolution002")
body.addObject(revolution3)
revolution3.Profile = sketch9
revolution3.ReferenceAxis = (sketch9, ["H_Axis"])
revolution3.setExpression("Angle", "Params.revolution3_angle")

sketch10 = doc.addObject("Sketcher::SketchObject", "Sketch009")
body.addObject(sketch10)
sketch10.AttachmentSupport = (doc.XZ_Plane, [""])
sketch10.MapMode = "FlatFace"
add_polygon(sketch10, [(228, -18), (228, -6), (250, -6), (250, 6), (228, 6), (228, 18), (262, 18), (262, -18)])
sketch10.addConstraint(Sketcher.Constraint("Vertical", 0))
sketch10.addConstraint(Sketcher.Constraint("Horizontal", 1))
sketch10.addConstraint(Sketcher.Constraint("Vertical", 2))
sketch10.addConstraint(Sketcher.Constraint("Horizontal", 3))
sketch10.addConstraint(Sketcher.Constraint("Vertical", 4))
sketch10.addConstraint(Sketcher.Constraint("Horizontal", 5))
sketch10.addConstraint(Sketcher.Constraint("Vertical", 6))
sketch10.addConstraint(Sketcher.Constraint("Horizontal", 7))
sketch10.addConstraint(Sketcher.Constraint("Symmetric", 0, 2, 3, 2, -1))
sketch10.addConstraint(Sketcher.Constraint("Equal", 0, 2))
sketch10.addConstraint(Sketcher.Constraint("Equal", 2, 4))
sketch10.addConstraint(Sketcher.Constraint("DistanceX", 1, 1, 1, 2, Q("22 mm")))
sketch10.addConstraint(Sketcher.Constraint("DistanceX", 5, 1, 5, 2, Q("34 mm")))
sketch10.addConstraint(Sketcher.Constraint("DistanceY", 0, 1, 0, 2, Q("12 mm")))
sketch10.addConstraint(Sketcher.Constraint("DistanceX", -1, 1, 0, 2, Q("228 mm")))
sketch10.setExpression("Constraints[19]", "Params.sketch10_width")
sketch10.setExpression("Constraints[20]", "Params.sketch10_width2")
sketch10.setExpression("Constraints[21]", "Params.sketch10_height")
pocket3 = doc.addObject("PartDesign::Pocket", "Pocket002")
body.addObject(pocket3)
pocket3.Profile = sketch10
pocket3.Type = "ThroughAll"
pocket3.Midplane = True

sketch11 = doc.addObject("Sketcher::SketchObject", "Sketch010")
body.addObject(sketch11)
sketch11.AttachmentSupport = (doc.XY_Plane, [""])
sketch11.MapMode = "FlatFace"
sketch11.AttachmentOffset = App.Placement(Vector(0, 0, -6), App.Rotation())
sketch11.addGeometry(Part.Circle(Vector(237, 0, 0), Vector(0, 0, 1), 3), False)
sketch11.addConstraint(Sketcher.Constraint("PointOnObject", 0, 3, -1))
sketch11.addConstraint(Sketcher.Constraint("Diameter", 0, Q("6 mm")))
sketch11.addConstraint(Sketcher.Constraint("DistanceX", -1, 1, 0, 3, Q("237 mm")))
sketch11.setExpression("Constraints[1]", "Params.sketch11_diameter")
doc.recompute()
hole = doc.addObject("PartDesign::Hole", "Hole")
body.addObject(hole)
hole.Profile = sketch11
hole.ThreadType = "None"
hole.setExpression("Diameter", "Params.hole_diameter")
hole.DepthType = "ThroughAll"
hole.Reversed = True

sketch12 = doc.addObject("Sketcher::SketchObject", "Sketch011")
body.addObject(sketch12)
sketch12.AttachmentSupport = (doc.XZ_Plane, [""])
sketch12.MapMode = "FlatFace"
sketch12.AttachmentOffset = App.Placement(Vector(0, 0, -10), App.Rotation())
sketch12.addGeometry(Part.Circle(Vector(23, 0, 0), Vector(0, 0, 1), 2.067), False)
sketch12.addConstraint(Sketcher.Constraint("PointOnObject", 0, 3, -1))
sketch12.addConstraint(Sketcher.Constraint("Diameter", 0, Q("4.134 mm")))
sketch12.addConstraint(Sketcher.Constraint("DistanceX", -1, 1, 0, 3, Q("23 mm")))
doc.recompute()
hole2 = doc.addObject("PartDesign::Hole", "Hole001")
body.addObject(hole2)
hole2.Profile = sketch12
hole2.ThreadType = "None"
hole2.setExpression("Diameter", "Params.hole2_diameter")
hole2.DepthType = "Dimension"
hole2.setExpression("Depth", "Params.hole2_depth")
hole2.DrillPoint = "Flat"
hole2.HoleCutType = "Countersink"
hole2.setExpression("HoleCutDiameter", "Params.hole2_csink_diameter")
hole2.HoleCutCountersinkAngle = 90
hole2.Reversed = True

sketch13 = doc.addObject("Sketcher::SketchObject", "Sketch012")
body.addObject(sketch13)
sketch13.AttachmentSupport = (doc.XZ_Plane, [""])
sketch13.MapMode = "FlatFace"
sketch13.AttachmentOffset = App.Placement(Vector(0, 0, -10), App.Rotation())
sketch13.addGeometry(Part.Circle(Vector(227, 0, 0), Vector(0, 0, 1), 2.067), False)
sketch13.addConstraint(Sketcher.Constraint("PointOnObject", 0, 3, -1))
sketch13.addConstraint(Sketcher.Constraint("Diameter", 0, Q("4.134 mm")))
sketch13.addConstraint(Sketcher.Constraint("DistanceX", -1, 1, 0, 3, Q("227 mm")))
doc.recompute()
hole3 = doc.addObject("PartDesign::Hole", "Hole002")
body.addObject(hole3)
hole3.Profile = sketch13
hole3.ThreadType = "None"
hole3.setExpression("Diameter", "Params.hole3_diameter")
hole3.DepthType = "Dimension"
hole3.setExpression("Depth", "Params.hole3_depth")
hole3.DrillPoint = "Flat"
hole3.HoleCutType = "Countersink"
hole3.setExpression("HoleCutDiameter", "Params.hole3_csink_diameter")
hole3.HoleCutCountersinkAngle = 90
hole3.Reversed = True

sketch14 = doc.addObject("Sketcher::SketchObject", "Sketch013")
body.addObject(sketch14)
sketch14.AttachmentSupport = (doc.XY_Plane, [""])
sketch14.MapMode = "FlatFace"
add_polygon(sketch14, [(-5, 3), (-5, 0), (205.2, 0), (205.2, 8), (41.2, 8), (41.2, 3)])
sketch14.addConstraint(Sketcher.Constraint("Vertical", 0))
sketch14.addConstraint(Sketcher.Constraint("Horizontal", 1))
sketch14.addConstraint(Sketcher.Constraint("Vertical", 2))
sketch14.addConstraint(Sketcher.Constraint("Horizontal", 3))
sketch14.addConstraint(Sketcher.Constraint("Vertical", 4))
sketch14.addConstraint(Sketcher.Constraint("Horizontal", 5))
sketch14.addConstraint(Sketcher.Constraint("PointOnObject", 0, 2, -1))
sketch14.addConstraint(Sketcher.Constraint("DistanceX", 3, 2, 3, 1, Q("164 mm")))
sketch14.addConstraint(Sketcher.Constraint("DistanceY", 0, 2, 0, 1, Q("3 mm")))
sketch14.addConstraint(Sketcher.Constraint("DistanceY", 2, 1, 2, 2, Q("8 mm")))
sketch14.addConstraint(Sketcher.Constraint("DistanceX", 1, 1, 1, 2, Q("210.2 mm")))
sketch14.addConstraint(Sketcher.Constraint("DistanceX", 0, 2, -1, 1, Q("5 mm")))
sketch14.setExpression("Constraints[13]", "Params.sketch14_width")
sketch14.setExpression("Constraints[14]", "Params.sketch14_height")
sketch14.setExpression("Constraints[15]", "Params.sketch14_height2")
sketch14.setExpression("Constraints[16]", "Params.sketch14_width2")
groove3 = doc.addObject("PartDesign::Groove", "Groove002")
body.addObject(groove3)
groove3.Profile = sketch14
groove3.ReferenceAxis = (sketch14, ["H_Axis"])
groove3.setExpression("Angle", "Params.groove3_angle")

doc.recompute()
